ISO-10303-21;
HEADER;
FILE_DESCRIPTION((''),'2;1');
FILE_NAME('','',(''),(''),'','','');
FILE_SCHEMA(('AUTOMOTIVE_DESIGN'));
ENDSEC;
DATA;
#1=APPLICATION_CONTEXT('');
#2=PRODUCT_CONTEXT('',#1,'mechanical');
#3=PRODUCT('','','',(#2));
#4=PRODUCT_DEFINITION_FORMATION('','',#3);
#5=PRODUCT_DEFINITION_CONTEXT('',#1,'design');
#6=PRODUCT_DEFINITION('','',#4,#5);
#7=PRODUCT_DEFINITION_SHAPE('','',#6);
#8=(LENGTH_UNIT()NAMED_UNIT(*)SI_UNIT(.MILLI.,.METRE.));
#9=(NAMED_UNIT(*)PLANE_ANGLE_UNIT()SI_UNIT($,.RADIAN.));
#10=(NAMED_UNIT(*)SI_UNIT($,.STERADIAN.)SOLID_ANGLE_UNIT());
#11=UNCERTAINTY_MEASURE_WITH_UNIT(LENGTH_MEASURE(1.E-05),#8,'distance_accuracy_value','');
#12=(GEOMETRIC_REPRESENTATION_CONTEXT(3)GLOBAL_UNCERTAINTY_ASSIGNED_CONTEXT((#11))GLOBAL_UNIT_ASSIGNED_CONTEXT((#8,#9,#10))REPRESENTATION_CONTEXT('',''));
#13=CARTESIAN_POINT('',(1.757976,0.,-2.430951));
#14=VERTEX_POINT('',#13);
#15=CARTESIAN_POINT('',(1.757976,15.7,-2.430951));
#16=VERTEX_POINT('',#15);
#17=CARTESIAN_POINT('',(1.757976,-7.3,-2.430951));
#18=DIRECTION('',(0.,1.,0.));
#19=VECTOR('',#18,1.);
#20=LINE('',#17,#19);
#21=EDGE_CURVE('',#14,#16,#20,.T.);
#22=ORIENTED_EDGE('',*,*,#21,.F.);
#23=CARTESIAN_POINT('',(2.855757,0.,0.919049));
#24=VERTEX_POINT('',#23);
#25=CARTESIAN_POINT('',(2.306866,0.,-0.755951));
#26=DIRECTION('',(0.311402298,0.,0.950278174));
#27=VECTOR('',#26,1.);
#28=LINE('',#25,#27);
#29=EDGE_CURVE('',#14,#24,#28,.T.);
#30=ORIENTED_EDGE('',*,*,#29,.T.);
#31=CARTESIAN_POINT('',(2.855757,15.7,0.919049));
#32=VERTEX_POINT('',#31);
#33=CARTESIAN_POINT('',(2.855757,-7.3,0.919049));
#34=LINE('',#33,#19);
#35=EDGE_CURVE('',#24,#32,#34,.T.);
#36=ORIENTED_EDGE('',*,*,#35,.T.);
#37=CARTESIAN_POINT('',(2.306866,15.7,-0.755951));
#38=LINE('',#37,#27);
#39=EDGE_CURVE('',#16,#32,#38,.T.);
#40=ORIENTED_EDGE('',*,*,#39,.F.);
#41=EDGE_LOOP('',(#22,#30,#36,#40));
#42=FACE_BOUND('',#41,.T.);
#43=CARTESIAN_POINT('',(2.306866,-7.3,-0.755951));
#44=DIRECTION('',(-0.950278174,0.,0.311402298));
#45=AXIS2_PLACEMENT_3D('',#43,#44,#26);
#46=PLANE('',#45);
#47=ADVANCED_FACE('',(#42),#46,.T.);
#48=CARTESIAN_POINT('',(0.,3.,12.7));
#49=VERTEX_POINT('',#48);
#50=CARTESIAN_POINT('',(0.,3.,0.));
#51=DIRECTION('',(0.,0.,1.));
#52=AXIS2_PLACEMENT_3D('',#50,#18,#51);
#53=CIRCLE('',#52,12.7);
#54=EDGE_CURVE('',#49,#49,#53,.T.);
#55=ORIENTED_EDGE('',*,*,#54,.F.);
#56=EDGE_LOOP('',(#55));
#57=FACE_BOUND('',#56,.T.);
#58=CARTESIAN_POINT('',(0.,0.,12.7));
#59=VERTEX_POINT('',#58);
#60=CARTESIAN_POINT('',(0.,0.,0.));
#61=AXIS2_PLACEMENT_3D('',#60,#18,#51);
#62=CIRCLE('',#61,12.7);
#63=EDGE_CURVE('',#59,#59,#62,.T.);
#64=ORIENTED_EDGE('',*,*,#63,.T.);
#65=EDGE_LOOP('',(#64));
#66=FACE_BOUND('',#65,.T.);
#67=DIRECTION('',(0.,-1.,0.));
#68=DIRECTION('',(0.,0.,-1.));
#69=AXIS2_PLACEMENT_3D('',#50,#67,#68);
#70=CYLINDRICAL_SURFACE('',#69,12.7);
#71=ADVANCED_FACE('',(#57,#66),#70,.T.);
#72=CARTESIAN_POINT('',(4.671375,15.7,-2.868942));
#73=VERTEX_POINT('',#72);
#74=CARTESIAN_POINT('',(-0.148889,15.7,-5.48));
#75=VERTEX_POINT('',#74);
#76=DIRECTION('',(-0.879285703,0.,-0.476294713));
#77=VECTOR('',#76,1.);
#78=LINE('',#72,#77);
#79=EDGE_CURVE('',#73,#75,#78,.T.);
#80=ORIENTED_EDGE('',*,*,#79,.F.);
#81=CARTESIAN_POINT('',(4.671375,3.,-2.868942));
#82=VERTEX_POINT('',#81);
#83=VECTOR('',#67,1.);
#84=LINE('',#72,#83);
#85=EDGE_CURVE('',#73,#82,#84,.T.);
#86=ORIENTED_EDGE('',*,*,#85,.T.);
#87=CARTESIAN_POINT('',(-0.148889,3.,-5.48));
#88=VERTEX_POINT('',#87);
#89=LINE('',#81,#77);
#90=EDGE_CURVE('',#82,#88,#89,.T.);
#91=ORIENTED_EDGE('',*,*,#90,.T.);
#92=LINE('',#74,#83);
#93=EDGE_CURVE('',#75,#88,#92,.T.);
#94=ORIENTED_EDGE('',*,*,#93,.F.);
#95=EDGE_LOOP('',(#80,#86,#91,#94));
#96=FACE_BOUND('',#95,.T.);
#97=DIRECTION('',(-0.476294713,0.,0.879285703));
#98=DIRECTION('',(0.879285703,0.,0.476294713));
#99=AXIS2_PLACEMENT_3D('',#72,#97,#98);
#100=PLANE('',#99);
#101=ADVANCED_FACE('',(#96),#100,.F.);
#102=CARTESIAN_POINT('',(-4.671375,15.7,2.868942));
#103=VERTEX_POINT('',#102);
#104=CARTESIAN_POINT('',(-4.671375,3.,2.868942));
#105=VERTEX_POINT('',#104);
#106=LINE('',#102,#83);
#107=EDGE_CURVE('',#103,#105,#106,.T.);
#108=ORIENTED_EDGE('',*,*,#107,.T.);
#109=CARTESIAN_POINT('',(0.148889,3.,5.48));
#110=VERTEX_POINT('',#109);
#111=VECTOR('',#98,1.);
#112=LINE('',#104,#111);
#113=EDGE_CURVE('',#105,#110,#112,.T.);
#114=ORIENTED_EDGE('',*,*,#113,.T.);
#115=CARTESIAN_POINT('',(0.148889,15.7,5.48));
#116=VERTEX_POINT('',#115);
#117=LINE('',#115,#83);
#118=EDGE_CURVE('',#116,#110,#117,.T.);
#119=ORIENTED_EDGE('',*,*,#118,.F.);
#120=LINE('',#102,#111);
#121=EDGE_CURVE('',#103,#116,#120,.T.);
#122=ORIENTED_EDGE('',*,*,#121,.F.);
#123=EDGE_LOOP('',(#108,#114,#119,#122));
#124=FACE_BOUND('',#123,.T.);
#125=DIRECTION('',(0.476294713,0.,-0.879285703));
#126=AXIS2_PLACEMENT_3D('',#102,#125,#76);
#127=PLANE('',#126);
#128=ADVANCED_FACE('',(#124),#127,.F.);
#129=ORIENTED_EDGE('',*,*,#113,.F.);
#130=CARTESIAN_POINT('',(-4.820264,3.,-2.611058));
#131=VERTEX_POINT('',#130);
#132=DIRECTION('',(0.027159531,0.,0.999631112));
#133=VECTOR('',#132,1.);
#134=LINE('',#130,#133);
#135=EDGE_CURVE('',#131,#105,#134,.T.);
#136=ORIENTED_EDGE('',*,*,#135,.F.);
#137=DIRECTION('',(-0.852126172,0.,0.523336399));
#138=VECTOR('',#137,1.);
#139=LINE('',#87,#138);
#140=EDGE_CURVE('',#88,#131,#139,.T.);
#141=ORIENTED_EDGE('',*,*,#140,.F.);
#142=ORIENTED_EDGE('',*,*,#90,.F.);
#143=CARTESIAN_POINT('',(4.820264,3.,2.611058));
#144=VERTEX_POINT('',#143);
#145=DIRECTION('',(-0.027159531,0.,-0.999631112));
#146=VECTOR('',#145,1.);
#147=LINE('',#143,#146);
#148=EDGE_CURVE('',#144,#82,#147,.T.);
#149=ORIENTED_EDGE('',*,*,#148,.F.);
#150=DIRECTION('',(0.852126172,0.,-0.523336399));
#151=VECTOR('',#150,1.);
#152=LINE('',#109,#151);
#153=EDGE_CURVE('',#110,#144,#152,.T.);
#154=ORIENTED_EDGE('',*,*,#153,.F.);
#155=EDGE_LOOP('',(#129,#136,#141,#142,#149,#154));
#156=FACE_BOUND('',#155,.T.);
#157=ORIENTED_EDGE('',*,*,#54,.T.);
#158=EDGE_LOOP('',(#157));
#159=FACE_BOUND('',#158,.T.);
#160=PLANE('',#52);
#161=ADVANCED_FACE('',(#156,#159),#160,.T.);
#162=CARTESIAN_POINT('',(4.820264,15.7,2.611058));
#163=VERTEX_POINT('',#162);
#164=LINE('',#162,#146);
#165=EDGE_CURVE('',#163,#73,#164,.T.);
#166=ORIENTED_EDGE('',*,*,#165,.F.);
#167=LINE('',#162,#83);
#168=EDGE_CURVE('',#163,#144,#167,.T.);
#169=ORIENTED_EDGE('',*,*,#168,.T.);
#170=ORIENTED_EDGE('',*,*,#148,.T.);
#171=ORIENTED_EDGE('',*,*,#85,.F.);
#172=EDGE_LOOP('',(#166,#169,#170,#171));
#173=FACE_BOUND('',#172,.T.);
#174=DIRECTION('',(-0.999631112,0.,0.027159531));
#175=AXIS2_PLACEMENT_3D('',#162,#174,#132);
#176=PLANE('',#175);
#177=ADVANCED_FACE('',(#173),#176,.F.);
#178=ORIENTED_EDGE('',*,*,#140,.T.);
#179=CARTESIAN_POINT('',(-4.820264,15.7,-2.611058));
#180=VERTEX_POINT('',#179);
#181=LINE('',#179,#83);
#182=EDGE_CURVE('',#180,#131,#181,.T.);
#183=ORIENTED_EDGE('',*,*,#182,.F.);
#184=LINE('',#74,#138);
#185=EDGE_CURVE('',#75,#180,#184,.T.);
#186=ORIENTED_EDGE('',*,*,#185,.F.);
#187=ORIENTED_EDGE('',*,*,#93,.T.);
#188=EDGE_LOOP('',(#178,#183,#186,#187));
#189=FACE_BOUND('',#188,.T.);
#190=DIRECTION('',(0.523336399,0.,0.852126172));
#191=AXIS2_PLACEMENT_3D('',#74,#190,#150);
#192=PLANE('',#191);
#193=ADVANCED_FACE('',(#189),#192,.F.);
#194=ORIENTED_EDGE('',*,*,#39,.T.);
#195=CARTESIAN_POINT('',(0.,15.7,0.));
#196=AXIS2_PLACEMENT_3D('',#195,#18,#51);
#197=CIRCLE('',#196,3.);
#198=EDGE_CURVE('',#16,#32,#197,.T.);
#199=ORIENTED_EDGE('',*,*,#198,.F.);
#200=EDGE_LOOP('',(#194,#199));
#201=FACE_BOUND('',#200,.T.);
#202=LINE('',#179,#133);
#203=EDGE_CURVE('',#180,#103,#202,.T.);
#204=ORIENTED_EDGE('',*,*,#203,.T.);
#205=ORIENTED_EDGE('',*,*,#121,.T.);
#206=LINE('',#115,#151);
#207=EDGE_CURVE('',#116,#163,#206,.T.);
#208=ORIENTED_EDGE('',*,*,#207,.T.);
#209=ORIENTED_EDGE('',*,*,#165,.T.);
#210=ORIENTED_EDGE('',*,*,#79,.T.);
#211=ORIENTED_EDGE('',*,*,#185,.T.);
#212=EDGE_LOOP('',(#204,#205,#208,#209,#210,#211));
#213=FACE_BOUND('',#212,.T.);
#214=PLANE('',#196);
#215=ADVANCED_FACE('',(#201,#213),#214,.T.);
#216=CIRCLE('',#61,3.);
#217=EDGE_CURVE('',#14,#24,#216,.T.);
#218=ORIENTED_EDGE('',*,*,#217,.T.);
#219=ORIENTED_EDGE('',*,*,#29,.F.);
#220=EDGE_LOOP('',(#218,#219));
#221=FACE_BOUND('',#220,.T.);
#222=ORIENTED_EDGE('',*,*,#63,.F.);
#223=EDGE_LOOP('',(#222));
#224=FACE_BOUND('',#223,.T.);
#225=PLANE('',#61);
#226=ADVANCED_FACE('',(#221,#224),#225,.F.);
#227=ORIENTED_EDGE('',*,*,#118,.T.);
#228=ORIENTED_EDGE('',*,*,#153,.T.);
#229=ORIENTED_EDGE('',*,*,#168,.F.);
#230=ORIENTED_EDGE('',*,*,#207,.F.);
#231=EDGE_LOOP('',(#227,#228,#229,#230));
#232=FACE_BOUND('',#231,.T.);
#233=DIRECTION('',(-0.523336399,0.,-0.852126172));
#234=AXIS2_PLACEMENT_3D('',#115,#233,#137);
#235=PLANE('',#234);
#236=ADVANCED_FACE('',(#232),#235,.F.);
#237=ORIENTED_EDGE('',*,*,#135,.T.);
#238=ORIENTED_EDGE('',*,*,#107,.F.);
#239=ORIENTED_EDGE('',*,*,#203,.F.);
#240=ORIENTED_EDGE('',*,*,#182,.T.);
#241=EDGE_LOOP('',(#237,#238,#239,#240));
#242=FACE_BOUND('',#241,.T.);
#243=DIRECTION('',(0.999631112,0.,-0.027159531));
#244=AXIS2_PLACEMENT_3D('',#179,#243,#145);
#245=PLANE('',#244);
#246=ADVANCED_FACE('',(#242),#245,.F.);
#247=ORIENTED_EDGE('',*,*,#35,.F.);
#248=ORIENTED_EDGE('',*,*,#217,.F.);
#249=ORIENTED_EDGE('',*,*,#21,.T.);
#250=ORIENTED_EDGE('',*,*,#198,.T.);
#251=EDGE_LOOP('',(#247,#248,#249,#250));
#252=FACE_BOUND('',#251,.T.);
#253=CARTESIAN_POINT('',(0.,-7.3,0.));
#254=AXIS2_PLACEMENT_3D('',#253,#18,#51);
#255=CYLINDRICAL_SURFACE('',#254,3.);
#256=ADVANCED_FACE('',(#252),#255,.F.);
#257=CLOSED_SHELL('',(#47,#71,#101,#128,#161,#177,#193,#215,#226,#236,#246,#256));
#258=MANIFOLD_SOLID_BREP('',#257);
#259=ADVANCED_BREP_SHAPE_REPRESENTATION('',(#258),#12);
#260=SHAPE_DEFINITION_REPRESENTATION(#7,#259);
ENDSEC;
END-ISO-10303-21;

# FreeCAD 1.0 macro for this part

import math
import FreeCAD as App
import Part
import Sketcher
from FreeCAD import Vector
Q = App.Units.Quantity


def add_polygon(sketch, points):
    """Adds a closed chain of lines whose ends are joined by coincident constraints."""
    first, n = sketch.GeometryCount, len(points)
    for a, b in zip(points, points[1:] + points[:1]):
        sketch.addGeometry(Part.LineSegment(App.Vector(*a, 0), App.Vector(*b, 0)), False)
    for i in range(n):
        sketch.addConstraint(Sketcher.Constraint("Coincident", first + i, 2, first + (i + 1) % n, 1))

doc = App.newDocument("Part")
params = doc.addObject("Spreadsheet::Sheet", "Params")
for row, (alias, value) in enumerate([
    ("sketch1_diameter", "25.4 mm"),
    ("pad1_length", "3 mm"),
    ("pad2_length", "12.7 mm"),
    ("sketch3_radius", "3 mm"),
    ("pocket1_length", "23 mm"),
], start=1):
    params.set(f"A{row}", alias)
    params.set(f"B{row}", "=" + value)
    params.setAlias(f"B{row}", alias)

body = doc.addObject("PartDesign::Body", "Body")

# Sketch on XZ plane
sketch1 = body.newObject("Sketcher::SketchObject", "Sketch")
sketch1.AttachmentSupport = (doc.getObject("XZ_Plane"), [""])
sketch1.MapMode = "FlatFace"
sketch1.addGeometry(Part.Circle(Vector(0, 0, 0), Vector(0, 0, 1), 13), False)
sketch1.addConstraint(Sketcher.Constraint("Coincident", 0, 3, -1, 1))
sketch1.addConstraint(Sketcher.Constraint("Diameter", 0, Q("25.4 mm")))
sketch1.setExpression("Constraints[1]", "Params.sketch1_diameter")
pad1 = body.newObject("PartDesign::Pad", "Pad")
pad1.Profile = sketch1
pad1.setExpression("Length", "Params.pad1_length")
pad1.Reversed = True

# Sketch on XZ plane
sketch2 = body.newObject("Sketcher::SketchObject", "Sketch001")
sketch2.AttachmentSupport = (doc.getObject("XZ_Plane"), [""])
sketch2.MapMode = "FlatFace"
sketch2.AttachmentOffset = App.Placement(Vector(0, 0, -3), App.Rotation())
add_polygon(sketch2, [(0, 5), (5, 3), (5, -3), (0, -5), (-5, -3), (-5, 3)])  # lines 0-5
sketch2.addConstraint(Sketcher.Constraint("Symmetric", 0, 2, 3, 2, -1, 1))
sketch2.addConstraint(Sketcher.Constraint("Symmetric", 1, 2, 4, 2, -1, 1))
sketch2.addConstraint(Sketcher.Constraint("Symmetric", 2, 2, 5, 2, -1, 1))
sketch2.addConstraint(Sketcher.Constraint("Equal", 0, 1))
sketch2.addConstraint(Sketcher.Constraint("Equal", 1, 2))
sketch2.addConstraint(Sketcher.Constraint("DistanceY", 2, 2, -1, 1, Q("5.48 mm")))
sketch2.addConstraint(Sketcher.Constraint("DistanceY", 1, 2, 0, 2, Q("5.48 mm")))
sketch2.addConstraint(Sketcher.Constraint("DistanceY", -1, 1, 0, 2, Q("2.611058 mm")))
sketch2.addConstraint(Sketcher.Constraint("DistanceX", 2, 2, -1, 1, Q("0.148889 mm")))
pad2 = body.newObject("PartDesign::Pad", "Pad001")
pad2.Profile = sketch2
pad2.setExpression("Length", "Params.pad2_length")
pad2.Reversed = True

# Sketch on XZ plane
sketch3 = body.newObject("Sketcher::SketchObject", "Sketch002")
sketch3.AttachmentSupport = (doc.getObject("XZ_Plane"), [""])
sketch3.MapMode = "FlatFace"
sketch3.AttachmentOffset = App.Placement(Vector(0, 0, -15.7), App.Rotation())
sketch3.addGeometry(Part.LineSegment(Vector(2.9, 0.9, 0), Vector(1.8, -2.4, 0)), False)
sketch3.addGeometry(Part.ArcOfCircle(Part.Circle(Vector(0, 0, 0), Vector(0, 0, 1), 3), math.radians(18), math.radians(306)), False)
sketch3.addConstraint(Sketcher.Constraint("Coincident", 0, 1, 1, 1))
sketch3.addConstraint(Sketcher.Constraint("Coincident", 1, 2, 0, 2))
sketch3.addConstraint(Sketcher.Constraint("Coincident", 1, 3, -1, 1))
sketch3.addConstraint(Sketcher.Constraint("Radius", 1, Q("3 mm")))
sketch3.addConstraint(Sketcher.Constraint("DistanceY", 1, 2, 0, 1, Q("3.35 mm")))
sketch3.addConstraint(Sketcher.Constraint("DistanceY", -1, 1, 0, 1, Q("0.919049 mm")))
sketch3.setExpression("Constraints[3]", "Params.sketch3_radius")
pocket1 = body.newObject("PartDesign::Pocket", "Pocket")
pocket1.Profile = sketch3
pocket1.setExpression("Length", "Params.pocket1_length")
pocket1.Reversed = True

doc.recompute()
